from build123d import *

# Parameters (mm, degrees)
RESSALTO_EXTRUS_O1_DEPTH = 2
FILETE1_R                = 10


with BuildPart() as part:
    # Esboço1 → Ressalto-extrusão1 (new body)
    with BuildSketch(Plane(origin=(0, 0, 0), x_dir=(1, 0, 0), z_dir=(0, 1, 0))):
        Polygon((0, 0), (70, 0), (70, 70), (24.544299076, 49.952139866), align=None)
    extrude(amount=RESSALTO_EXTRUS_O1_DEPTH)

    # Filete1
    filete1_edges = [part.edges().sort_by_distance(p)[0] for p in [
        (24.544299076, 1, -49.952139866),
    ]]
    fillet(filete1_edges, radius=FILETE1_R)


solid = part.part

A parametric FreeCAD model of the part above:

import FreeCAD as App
import Part
import Sketcher
from FreeCAD import Vector
Q = App.Units.Quantity


def edges_at(feature, points):
    """Names of the edges that pass closest to the given points."""
    edges = feature.Shape.Edges
    near = lambda p: min(range(len(edges)), key=lambda i: edges[i].distToShape(Part.Vertex(*p))[0])
    return sorted({f"Edge{near(p) + 1}" for p in points})


def add_polygon(sketch, points):
    """Adds a closed chain of lines whose ends are joined by coincident constraints."""
    first, n = sketch.GeometryCount, len(points)
    for a, b in zip(points, points[1:] + points[:1]):
        sketch.addGeometry(Part.LineSegment(App.Vector(*a, 0), App.Vector(*b, 0)), False)
    for i in range(n):
        sketch.addConstraint(Sketcher.Constraint("Coincident", first + i, 2, first + (i + 1) % n, 1))

doc = App.newDocument("Part")
body = doc.addObject("PartDesign::Body", "Body")

sketch1 = doc.addObject("Sketcher::SketchObject", "Sketch")
body.addObject(sketch1)
sketch1.AttachmentSupport = (doc.XZ_Plane, [""])
sketch1.MapMode = "FlatFace"
add_polygon(sketch1, [(0, 0), (70, 0), (70, -70), (25, -50)])
sketch1.addConstraint([
    Sketcher.Constraint("Horizontal", 0),
    Sketcher.Constraint("Vertical", 1),
    Sketcher.Constraint("Coincident", 3, 2, -1, 1),
    Sketcher.Constraint("Equal", 0, 1),
    Sketcher.Constraint("DistanceX", 0, 1, 0, 2, Q("70 mm")),
    Sketcher.Constraint("DistanceX", -1, 1, 2, 2, Q("24.544299 mm")),
    Sketcher.Constraint("DistanceY", 2, 2, -1, 1, Q("49.95214 mm")),
])
pad1 = doc.addObject("PartDesign::Pad", "Pad")
body.addObject(pad1)
pad1.Profile = sketch1
pad1.Length = 2
pad1.Reversed = True
doc.recompute()

fillet = doc.addObject("PartDesign::Fillet", "Fillet")
body.addObject(fillet)
fillet.Base = (pad1, edges_at(pad1, [(24.544, 1, -49.952)]))
fillet.Radius = 10

doc.recompute()
